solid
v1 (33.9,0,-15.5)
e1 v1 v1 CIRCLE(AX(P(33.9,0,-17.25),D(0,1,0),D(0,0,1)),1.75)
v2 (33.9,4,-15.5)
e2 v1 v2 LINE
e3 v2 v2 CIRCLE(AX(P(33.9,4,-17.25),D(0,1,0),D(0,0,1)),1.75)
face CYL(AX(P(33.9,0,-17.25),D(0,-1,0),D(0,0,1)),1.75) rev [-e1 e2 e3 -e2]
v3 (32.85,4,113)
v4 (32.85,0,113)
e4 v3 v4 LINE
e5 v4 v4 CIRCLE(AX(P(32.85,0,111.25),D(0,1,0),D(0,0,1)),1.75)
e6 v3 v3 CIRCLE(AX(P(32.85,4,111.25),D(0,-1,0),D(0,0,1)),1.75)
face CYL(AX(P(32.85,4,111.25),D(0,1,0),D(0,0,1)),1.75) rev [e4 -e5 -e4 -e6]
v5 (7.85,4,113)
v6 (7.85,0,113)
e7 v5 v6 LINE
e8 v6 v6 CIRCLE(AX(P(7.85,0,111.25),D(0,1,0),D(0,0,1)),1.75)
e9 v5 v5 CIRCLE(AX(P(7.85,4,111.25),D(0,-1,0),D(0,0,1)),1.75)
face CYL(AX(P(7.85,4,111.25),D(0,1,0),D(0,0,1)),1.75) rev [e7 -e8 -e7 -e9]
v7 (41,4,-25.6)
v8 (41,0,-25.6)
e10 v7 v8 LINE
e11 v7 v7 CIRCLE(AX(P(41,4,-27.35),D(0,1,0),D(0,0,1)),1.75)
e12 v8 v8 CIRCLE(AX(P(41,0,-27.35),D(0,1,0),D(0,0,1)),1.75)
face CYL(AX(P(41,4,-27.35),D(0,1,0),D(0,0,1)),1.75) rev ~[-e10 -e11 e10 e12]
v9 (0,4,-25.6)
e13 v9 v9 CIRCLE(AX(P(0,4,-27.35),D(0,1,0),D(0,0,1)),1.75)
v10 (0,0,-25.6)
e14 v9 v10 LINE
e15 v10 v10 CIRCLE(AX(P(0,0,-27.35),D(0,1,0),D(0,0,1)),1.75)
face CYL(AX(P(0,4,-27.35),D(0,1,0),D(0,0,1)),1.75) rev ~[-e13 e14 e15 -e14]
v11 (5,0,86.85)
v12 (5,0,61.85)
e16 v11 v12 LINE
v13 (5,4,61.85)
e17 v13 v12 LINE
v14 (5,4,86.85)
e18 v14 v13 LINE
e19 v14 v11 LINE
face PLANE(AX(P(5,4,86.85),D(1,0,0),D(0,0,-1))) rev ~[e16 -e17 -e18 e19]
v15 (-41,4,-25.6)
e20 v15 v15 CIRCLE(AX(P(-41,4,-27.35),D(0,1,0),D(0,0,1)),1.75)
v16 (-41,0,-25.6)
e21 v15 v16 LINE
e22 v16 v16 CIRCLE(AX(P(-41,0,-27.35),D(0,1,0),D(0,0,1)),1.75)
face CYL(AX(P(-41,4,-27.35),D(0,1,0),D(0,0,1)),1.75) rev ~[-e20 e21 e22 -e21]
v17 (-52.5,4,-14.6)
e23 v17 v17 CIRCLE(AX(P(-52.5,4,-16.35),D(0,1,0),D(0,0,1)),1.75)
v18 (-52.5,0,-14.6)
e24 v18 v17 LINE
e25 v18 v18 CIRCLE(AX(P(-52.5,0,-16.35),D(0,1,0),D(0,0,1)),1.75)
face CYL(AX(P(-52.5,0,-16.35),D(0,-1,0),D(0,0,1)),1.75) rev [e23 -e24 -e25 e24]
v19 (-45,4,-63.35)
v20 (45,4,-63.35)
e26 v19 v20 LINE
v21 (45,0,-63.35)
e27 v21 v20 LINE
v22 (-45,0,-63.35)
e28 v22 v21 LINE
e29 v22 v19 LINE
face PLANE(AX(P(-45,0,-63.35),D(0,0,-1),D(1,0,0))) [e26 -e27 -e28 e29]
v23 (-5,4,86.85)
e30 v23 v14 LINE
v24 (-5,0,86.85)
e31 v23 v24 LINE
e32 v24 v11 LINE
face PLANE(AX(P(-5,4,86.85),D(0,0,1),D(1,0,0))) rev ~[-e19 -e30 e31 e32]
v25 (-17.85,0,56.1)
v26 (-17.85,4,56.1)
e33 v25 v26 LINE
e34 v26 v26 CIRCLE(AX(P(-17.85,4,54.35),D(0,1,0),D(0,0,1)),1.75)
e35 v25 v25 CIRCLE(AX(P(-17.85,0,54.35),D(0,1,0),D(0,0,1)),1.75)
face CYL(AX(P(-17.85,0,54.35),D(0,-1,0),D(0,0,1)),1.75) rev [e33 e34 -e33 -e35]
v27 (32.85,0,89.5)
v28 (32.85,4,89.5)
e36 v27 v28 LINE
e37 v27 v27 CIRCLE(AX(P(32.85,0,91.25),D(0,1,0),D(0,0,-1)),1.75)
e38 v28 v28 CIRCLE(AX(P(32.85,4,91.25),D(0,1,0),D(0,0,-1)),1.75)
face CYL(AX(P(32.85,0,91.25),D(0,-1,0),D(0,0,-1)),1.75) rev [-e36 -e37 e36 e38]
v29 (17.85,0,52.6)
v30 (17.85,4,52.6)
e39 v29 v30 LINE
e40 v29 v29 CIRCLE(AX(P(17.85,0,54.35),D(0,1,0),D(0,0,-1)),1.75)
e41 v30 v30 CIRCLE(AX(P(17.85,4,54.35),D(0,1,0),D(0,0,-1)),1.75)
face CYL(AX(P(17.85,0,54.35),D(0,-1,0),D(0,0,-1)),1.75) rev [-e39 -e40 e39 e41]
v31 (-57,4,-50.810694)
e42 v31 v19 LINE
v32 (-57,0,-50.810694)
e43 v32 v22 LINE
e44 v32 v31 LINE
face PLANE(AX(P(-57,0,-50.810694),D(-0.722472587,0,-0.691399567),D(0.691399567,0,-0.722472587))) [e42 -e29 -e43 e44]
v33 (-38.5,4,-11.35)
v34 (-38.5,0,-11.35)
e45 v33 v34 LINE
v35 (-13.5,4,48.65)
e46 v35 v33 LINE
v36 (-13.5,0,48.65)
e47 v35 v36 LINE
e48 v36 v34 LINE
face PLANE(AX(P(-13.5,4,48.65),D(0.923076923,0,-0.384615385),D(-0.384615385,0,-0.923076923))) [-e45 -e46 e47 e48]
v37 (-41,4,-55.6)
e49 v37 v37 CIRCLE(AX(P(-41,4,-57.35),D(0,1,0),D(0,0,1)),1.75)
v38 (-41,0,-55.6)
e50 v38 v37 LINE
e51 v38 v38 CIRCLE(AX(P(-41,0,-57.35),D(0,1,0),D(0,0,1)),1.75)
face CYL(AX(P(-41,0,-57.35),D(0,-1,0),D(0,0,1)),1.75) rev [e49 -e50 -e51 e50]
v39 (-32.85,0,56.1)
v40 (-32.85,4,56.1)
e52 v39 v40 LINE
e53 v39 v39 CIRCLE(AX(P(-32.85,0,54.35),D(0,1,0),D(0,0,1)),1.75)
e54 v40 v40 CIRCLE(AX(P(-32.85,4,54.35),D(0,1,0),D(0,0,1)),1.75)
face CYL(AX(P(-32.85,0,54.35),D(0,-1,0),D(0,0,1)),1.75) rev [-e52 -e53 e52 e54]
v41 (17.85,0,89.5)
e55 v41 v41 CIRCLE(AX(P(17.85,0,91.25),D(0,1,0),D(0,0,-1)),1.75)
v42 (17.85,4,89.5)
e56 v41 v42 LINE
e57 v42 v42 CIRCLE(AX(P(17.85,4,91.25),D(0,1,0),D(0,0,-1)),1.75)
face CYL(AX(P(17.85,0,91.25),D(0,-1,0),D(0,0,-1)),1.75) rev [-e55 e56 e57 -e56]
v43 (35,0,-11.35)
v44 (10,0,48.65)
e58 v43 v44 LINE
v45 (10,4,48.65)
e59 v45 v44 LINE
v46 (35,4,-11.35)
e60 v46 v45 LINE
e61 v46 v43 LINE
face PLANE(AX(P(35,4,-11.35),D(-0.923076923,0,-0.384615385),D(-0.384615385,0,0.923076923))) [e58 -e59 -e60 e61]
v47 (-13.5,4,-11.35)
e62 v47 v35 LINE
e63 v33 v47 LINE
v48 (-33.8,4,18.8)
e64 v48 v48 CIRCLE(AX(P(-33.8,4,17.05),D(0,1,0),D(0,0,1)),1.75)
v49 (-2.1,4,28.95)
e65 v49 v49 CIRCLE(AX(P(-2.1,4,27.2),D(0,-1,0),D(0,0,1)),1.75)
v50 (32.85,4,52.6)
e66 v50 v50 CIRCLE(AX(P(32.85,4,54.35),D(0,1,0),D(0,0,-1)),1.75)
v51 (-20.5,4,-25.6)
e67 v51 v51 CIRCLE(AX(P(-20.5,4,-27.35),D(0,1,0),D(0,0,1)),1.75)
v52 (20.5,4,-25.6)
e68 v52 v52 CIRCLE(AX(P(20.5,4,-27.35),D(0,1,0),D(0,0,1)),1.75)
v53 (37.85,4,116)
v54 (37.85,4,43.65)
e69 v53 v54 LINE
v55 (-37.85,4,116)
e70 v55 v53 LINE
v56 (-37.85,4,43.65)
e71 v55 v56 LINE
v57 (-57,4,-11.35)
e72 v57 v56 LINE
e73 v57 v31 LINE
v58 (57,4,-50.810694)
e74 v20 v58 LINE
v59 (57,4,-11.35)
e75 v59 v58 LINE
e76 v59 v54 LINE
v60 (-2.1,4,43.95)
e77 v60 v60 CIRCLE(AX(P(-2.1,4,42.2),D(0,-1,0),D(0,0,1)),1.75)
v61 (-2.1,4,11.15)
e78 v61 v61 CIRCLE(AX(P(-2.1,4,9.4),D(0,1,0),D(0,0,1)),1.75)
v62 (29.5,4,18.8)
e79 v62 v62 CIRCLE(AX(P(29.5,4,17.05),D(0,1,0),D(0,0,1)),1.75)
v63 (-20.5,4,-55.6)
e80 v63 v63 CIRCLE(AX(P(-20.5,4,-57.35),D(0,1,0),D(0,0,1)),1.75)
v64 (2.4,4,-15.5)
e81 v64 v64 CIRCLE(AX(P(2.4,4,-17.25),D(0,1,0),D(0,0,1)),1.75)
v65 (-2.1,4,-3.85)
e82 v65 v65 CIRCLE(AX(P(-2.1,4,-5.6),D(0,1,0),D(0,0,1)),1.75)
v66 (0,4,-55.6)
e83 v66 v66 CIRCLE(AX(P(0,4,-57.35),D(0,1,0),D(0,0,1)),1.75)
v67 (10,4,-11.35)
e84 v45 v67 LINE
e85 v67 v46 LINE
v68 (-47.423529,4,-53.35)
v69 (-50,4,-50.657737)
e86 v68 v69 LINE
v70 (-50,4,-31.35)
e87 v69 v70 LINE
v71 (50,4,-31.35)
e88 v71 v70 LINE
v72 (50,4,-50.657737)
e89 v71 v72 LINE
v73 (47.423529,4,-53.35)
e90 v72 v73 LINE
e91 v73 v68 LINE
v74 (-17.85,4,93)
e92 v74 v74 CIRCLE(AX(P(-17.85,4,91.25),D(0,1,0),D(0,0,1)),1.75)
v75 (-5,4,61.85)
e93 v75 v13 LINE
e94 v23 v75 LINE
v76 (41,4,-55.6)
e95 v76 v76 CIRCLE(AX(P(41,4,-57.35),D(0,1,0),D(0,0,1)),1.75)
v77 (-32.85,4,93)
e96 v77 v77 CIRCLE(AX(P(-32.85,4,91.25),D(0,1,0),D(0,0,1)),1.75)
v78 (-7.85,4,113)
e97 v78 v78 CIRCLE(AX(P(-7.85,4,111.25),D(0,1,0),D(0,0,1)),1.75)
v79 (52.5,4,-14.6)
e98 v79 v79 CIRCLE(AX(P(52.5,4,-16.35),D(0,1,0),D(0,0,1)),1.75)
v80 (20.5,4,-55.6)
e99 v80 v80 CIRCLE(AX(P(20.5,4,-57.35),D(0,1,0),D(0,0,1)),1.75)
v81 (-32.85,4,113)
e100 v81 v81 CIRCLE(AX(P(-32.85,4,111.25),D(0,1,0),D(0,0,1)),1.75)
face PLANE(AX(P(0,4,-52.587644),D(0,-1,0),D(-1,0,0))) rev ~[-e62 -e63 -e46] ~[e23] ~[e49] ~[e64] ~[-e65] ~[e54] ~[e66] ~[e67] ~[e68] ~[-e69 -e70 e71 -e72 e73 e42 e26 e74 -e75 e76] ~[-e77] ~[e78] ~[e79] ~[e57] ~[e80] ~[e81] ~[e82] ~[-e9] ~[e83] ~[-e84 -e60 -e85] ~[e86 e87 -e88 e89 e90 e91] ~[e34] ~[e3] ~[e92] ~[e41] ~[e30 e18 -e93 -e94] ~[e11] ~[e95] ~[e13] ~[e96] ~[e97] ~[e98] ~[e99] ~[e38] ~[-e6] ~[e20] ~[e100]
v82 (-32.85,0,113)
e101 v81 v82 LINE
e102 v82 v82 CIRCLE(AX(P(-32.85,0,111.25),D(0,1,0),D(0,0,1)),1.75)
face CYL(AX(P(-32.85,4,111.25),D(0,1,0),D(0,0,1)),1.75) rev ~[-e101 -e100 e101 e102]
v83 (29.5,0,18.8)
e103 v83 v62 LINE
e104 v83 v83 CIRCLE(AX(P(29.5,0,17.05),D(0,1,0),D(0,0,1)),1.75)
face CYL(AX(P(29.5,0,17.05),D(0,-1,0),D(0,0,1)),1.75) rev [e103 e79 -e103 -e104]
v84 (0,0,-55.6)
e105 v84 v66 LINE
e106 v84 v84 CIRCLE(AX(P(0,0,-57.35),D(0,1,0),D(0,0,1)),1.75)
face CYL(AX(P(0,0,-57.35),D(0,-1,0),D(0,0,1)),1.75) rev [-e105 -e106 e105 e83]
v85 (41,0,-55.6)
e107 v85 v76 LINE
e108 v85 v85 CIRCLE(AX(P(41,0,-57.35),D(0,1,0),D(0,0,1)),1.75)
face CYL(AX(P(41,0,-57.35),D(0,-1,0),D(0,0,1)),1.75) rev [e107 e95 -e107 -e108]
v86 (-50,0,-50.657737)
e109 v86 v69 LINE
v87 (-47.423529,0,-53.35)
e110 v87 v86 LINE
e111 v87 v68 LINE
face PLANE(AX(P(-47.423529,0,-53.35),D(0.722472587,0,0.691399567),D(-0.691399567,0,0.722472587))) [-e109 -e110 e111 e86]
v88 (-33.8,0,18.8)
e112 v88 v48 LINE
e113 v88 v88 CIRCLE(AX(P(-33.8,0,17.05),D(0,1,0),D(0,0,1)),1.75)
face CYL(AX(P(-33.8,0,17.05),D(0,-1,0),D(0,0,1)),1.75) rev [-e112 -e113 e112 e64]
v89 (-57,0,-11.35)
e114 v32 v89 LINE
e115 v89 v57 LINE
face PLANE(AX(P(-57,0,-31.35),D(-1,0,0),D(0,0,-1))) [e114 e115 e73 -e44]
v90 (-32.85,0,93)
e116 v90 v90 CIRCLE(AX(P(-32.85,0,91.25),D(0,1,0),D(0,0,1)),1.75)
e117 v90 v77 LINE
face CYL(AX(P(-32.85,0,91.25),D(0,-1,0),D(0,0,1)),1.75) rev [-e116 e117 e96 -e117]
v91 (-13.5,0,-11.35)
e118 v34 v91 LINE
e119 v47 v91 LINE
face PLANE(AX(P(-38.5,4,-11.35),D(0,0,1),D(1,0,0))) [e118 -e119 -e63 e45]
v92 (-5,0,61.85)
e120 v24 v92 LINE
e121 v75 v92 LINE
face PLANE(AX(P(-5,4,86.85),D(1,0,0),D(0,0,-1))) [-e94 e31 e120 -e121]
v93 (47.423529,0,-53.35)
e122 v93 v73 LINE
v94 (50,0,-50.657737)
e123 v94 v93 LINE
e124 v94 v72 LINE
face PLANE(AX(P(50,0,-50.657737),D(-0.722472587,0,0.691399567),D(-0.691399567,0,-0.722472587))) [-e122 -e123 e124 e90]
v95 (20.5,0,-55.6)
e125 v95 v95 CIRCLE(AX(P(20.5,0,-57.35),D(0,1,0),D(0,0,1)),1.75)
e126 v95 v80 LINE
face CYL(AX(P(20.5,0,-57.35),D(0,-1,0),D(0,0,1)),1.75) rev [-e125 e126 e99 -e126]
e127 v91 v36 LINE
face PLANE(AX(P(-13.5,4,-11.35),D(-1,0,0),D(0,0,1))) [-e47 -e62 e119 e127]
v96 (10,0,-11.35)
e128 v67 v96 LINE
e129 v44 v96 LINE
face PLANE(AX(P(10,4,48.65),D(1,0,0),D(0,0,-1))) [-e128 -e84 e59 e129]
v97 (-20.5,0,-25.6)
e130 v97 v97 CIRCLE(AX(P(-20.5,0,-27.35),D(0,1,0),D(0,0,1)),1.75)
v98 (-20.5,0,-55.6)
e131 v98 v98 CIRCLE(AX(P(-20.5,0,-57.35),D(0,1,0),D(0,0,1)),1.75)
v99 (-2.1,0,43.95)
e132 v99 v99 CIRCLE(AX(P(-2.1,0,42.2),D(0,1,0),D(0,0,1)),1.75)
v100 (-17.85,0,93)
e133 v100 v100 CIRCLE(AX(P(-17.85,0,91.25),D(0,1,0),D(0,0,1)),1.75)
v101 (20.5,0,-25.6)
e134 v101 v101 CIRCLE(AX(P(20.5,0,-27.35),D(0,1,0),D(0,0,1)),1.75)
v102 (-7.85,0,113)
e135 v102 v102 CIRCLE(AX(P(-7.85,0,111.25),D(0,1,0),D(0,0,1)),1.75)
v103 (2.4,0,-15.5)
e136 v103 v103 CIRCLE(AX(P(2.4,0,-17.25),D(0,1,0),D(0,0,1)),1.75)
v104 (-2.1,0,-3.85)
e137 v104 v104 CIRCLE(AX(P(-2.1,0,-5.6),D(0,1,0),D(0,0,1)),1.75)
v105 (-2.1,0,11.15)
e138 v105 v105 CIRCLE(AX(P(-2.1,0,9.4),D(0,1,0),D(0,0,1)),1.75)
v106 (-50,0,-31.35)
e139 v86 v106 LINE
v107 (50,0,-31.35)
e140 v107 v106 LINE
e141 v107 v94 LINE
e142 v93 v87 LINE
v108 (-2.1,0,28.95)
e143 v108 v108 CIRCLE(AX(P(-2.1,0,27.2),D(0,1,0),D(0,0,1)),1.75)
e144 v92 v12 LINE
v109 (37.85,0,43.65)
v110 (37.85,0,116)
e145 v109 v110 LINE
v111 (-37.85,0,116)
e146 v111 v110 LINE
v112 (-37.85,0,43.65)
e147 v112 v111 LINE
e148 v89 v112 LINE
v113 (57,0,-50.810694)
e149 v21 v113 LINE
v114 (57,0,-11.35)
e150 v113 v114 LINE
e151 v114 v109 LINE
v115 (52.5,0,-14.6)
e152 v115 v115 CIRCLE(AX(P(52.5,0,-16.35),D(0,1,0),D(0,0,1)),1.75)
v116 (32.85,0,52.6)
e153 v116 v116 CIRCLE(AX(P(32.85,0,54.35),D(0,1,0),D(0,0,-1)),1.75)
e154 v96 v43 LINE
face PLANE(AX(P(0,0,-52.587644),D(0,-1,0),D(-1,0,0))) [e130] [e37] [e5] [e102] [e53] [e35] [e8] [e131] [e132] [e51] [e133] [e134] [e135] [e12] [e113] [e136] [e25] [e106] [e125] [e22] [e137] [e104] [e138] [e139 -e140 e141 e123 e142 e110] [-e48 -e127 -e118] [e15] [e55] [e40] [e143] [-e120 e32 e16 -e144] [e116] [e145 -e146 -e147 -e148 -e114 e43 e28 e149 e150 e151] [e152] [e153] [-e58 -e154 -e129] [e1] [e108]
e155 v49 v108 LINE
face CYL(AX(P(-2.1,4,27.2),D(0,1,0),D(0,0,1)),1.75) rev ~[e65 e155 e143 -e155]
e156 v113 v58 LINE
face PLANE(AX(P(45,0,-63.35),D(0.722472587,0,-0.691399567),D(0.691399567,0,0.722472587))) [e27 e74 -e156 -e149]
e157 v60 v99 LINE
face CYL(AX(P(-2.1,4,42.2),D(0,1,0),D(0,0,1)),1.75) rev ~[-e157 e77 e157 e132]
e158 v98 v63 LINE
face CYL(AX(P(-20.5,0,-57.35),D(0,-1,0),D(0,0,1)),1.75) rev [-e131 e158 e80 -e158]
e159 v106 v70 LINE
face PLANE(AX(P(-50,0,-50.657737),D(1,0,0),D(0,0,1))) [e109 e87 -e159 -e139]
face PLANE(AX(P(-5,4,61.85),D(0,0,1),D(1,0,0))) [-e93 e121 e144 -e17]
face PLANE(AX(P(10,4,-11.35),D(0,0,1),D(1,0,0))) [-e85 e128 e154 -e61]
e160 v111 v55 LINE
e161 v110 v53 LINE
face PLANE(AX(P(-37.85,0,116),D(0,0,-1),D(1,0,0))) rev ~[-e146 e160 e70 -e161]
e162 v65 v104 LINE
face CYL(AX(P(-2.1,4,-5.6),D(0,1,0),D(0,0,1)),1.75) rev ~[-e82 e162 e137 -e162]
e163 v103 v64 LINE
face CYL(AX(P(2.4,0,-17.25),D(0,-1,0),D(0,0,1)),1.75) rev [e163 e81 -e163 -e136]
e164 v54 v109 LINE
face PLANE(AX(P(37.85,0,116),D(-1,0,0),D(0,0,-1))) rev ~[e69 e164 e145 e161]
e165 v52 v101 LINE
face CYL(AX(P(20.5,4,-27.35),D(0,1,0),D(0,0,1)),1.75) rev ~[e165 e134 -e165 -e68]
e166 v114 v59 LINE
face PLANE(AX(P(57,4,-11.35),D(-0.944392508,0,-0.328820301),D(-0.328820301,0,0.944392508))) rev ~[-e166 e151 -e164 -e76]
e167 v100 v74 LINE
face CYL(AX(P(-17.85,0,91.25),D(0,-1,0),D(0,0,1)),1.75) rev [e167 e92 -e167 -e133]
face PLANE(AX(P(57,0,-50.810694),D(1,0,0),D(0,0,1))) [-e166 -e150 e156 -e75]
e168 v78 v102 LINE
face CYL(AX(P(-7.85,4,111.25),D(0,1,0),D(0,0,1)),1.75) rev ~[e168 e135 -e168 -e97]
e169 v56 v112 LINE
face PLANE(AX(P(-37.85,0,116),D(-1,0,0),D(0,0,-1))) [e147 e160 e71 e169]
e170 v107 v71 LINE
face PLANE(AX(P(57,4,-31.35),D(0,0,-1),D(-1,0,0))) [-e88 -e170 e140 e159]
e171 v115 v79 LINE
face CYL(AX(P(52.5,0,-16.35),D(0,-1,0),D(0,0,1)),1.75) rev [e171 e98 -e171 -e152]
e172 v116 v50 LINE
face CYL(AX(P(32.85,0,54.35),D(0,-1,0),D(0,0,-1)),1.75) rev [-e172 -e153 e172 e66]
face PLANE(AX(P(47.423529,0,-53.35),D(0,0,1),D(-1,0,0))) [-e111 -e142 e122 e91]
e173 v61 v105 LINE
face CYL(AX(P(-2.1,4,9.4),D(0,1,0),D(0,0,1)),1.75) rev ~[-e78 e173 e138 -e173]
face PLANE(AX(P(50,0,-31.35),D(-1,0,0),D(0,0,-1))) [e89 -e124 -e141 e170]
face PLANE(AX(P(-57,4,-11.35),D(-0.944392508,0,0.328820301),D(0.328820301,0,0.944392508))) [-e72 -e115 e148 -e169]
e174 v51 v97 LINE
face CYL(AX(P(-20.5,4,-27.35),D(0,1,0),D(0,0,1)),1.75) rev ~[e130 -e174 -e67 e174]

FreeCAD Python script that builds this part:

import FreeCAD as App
import Part
import Sketcher
Q = App.Units.Quantity


def add_polygon(sketch, points):
    """Adds a closed chain of lines whose ends are joined by coincident constraints."""
    first, n = sketch.GeometryCount, len(points)
    for a, b in zip(points, points[1:] + points[:1]):
        sketch.addGeometry(Part.LineSegment(App.Vector(*a, 0), App.Vector(*b, 0)), False)
    for i in range(n):
        sketch.addConstraint(Sketcher.Constraint("Coincident", first + i, 2, first + (i + 1) % n, 1))

doc = App.newDocument("Part")
body = doc.addObject("PartDesign::Body", "Body")

# Sketch on XZ plane
sketch1 = body.newObject("Sketcher::SketchObject", "Sketch")
sketch1.AttachmentSupport = (doc.getObject("XZ_Plane"), [""])
sketch1.MapMode = "FlatFace"
add_polygon(sketch1, [(-37.85, -21.35), (-37.85, 21.35), (37.85, 21.35), (37.85, -21.35)])  # lines 0-3
sketch1.addGeometry(Part.Circle(App.Vector(-33.8, 17.05, 0), App.Vector(0, 0, 1), 1.75), False)  # 4
sketch1.addGeometry(Part.Circle(App.Vector(29.5, 17.05, 0), App.Vector(0, 0, 1), 1.75), False)  # 5
sketch1.addGeometry(Part.Circle(App.Vector(2.4, -17.25, 0), App.Vector(0, 0, 1), 1.75), False)  # 6
sketch1.addGeometry(Part.Circle(App.Vector(33.9, -17.25, 0), App.Vector(0, 0, 1), 1.75), False)  # 7
sketch1.addConstraint(Sketcher.Constraint("Vertical", 0))
sketch1.addConstraint(Sketcher.Constraint("Horizontal", 1))
sketch1.addConstraint(Sketcher.Constraint("Vertical", 2))
sketch1.addConstraint(Sketcher.Constraint("Horizontal", 3))
sketch1.addConstraint(Sketcher.Constraint("Equal", 4, 5))
sketch1.addConstraint(Sketcher.Constraint("Equal", 5, 6))
sketch1.addConstraint(Sketcher.Constraint("Equal", 6, 7))
sketch1.addConstraint(Sketcher.Constraint("Symmetric", 0, 2, 2, 2, -1, 1))
sketch1.addConstraint(Sketcher.Constraint("Horizontal", 4, 3, 5, 3))
sketch1.addConstraint(Sketcher.Constraint("Horizontal", 6, 3, 7, 3))
sketch1.addConstraint(Sketcher.Constraint("Diameter", 4, Q("3.5 mm")))
sketch1.addConstraint(Sketcher.Constraint("DistanceX", 1, 1, 1, 2, Q("75.7 mm")))
sketch1.addConstraint(Sketcher.Constraint("DistanceY", 0, 1, 0, 2, Q("42.7 mm")))
sketch1.addConstraint(Sketcher.Constraint("DistanceX", 4, 3, -1, 1, Q("33.8 mm")))
sketch1.addConstraint(Sketcher.Constraint("DistanceX", -1, 1, 5, 3, Q("29.5 mm")))
sketch1.addConstraint(Sketcher.Constraint("DistanceX", -1, 1, 6, 3, Q("2.4 mm")))
sketch1.addConstraint(Sketcher.Constraint("DistanceX", -1, 1, 7, 3, Q("33.9 mm")))
sketch1.addConstraint(Sketcher.Constraint("DistanceY", 6, 3, 5, 3, Q("34.3 mm")))
sketch1.addConstraint(Sketcher.Constraint("DistanceY", 4, 3, 0, 2, Q("4.3 mm")))
pad1 = body.newObject("PartDesign::Pad", "Pad")
pad1.Profile = sketch1
pad1.Length = 4
pad1.Reversed = True

# Sketch on XZ plane
sketch2 = body.newObject("Sketcher::SketchObject", "Sketch001")
sketch2.AttachmentSupport = (doc.getObject("XZ_Plane"), [""])
sketch2.MapMode = "FlatFace"
sketch2.AttachmentOffset = App.Placement(App.Vector(0, 0, -4), App.Rotation())
add_polygon(sketch2, [(-37.85, 21.35), (-37.85, 51.1), (37.85, 51.1), (37.85, 21.35)])  # lines 0-3
sketch2.addGeometry(Part.Circle(App.Vector(-2.1, 27.2, 0), App.Vector(0, 0, 1), 1.75), False)  # 4
sketch2.addGeometry(Part.Circle(App.Vector(-2.1, 42.2, 0), App.Vector(0, 0, 1), 1.75), False)  # 5
sketch2.addConstraint(Sketcher.Constraint("Vertical", 0))
sketch2.addConstraint(Sketcher.Constraint("Horizontal", 1))
sketch2.addConstraint(Sketcher.Constraint("Vertical", 2))
sketch2.addConstraint(Sketcher.Constraint("Horizontal", 3))
sketch2.addConstraint(Sketcher.Constraint("Equal", 4, 5))
sketch2.addConstraint(Sketcher.Constraint("Vertical", 4, 3, 5, 3))
sketch2.addConstraint(Sketcher.Constraint("Diameter", 4, Q("3.5 mm")))
sketch2.addConstraint(Sketcher.Constraint("DistanceX", 1, 1, 1, 2, Q("75.7 mm")))
sketch2.addConstraint(Sketcher.Constraint("DistanceY", 4, 3, 5, 3, Q("15 mm")))
sketch2.addConstraint(Sketcher.Constraint("DistanceY", 0, 1, 0, 2, Q("29.75 mm")))
sketch2.addConstraint(Sketcher.Constraint("DistanceX", 4, 3, -1, 1, Q("2.1 mm")))
sketch2.addConstraint(Sketcher.Constraint("DistanceY", -1, 1, 4, 3, Q("27.2 mm")))
sketch2.addConstraint(Sketcher.Constraint("DistanceY", -1, 1, 0, 2, Q("51.1 mm")))
sketch2.addConstraint(Sketcher.Constraint("DistanceX", 0, 2, -1, 1, Q("37.85 mm")))
pad2 = body.newObject("PartDesign::Pad", "Pad001")
pad2.Profile = sketch2
pad2.Length = 4

# Sketch on XZ plane
sketch3 = body.newObject("Sketcher::SketchObject", "Sketch002")
sketch3.AttachmentSupport = (doc.getObject("XZ_Plane"), [""])
sketch3.MapMode = "FlatFace"
sketch3.AttachmentOffset = App.Placement(App.Vector(0, 0, -4), App.Rotation())
sketch3.addGeometry(Part.Circle(App.Vector(-2.1, -5.6, 0), App.Vector(0, 0, 1), 1.75), False)
sketch3.addGeometry(Part.Circle(App.Vector(-2.1, 9.4, 0), App.Vector(0, 0, 1), 1.75), False)
sketch3.addConstraint(Sketcher.Constraint("Equal", 0, 1))
sketch3.addConstraint(Sketcher.Constraint("Vertical", 0, 3, 1, 3))
sketch3.addConstraint(Sketcher.Constraint("Diameter", 0, Q("3.5 mm")))
sketch3.addConstraint(Sketcher.Constraint("DistanceY", 0, 3, 1, 3, Q("15 mm")))
sketch3.addConstraint(Sketcher.Constraint("DistanceX", 0, 3, -1, 1, Q("2.1 mm")))
sketch3.addConstraint(Sketcher.Constraint("DistanceY", 0, 3, -1, 1, Q("5.6 mm")))
pocket1 = body.newObject("PartDesign::Pocket", "Pocket")
pocket1.Profile = sketch3
pocket1.Length = 4
pocket1.Reversed = True

# Sketch on XZ plane
sketch4 = body.newObject("Sketcher::SketchObject", "Sketch003")
sketch4.AttachmentSupport = (doc.getObject("XZ_Plane"), [""])
sketch4.MapMode = "FlatFace"
add_polygon(sketch4, [(-37.85, 51.1), (-37.85, 94.5), (37.85, 94.5), (37.85, 51.1)])  # lines 0-3
sketch4.addGeometry(Part.Circle(App.Vector(-32.85, 91.25, 0), App.Vector(0, 0, 1), 1.75), False)  # 4
sketch4.addGeometry(Part.Circle(App.Vector(-17.85, 91.25, 0), App.Vector(0, 0, 1), 1.75), False)  # 5
sketch4.addGeometry(Part.Circle(App.Vector(17.85, 91.25, 0), App.Vector(0, 0, 1), 1.75), False)  # 6
sketch4.addGeometry(Part.Circle(App.Vector(32.85, 91.25, 0), App.Vector(0, 0, 1), 1.75), False)  # 7
sketch4.addGeometry(Part.Circle(App.Vector(-32.85, 54.35, 0), App.Vector(0, 0, 1), 1.75), False)  # 8
sketch4.addGeometry(Part.Circle(App.Vector(-17.85, 54.35, 0), App.Vector(0, 0, 1), 1.75), False)  # 9
sketch4.addGeometry(Part.Circle(App.Vector(17.85, 54.35, 0), App.Vector(0, 0, 1), 1.75), False)  # 10
sketch4.addGeometry(Part.Circle(App.Vector(32.85, 54.35, 0), App.Vector(0, 0, 1), 1.75), False)  # 11
add_polygon(sketch4, [(-44, -21.35), (44, -21.35), (44, -29.35), (-44, -29.35)])  # lines 12-15
sketch4.addConstraint(Sketcher.Constraint("Vertical", 0))
sketch4.addConstraint(Sketcher.Constraint("Horizontal", 1))
sketch4.addConstraint(Sketcher.Constraint("Vertical", 2))
sketch4.addConstraint(Sketcher.Constraint("Horizontal", 3))
sketch4.addConstraint(Sketcher.Constraint("Horizontal", 12))
sketch4.addConstraint(Sketcher.Constraint("Vertical", 13))
sketch4.addConstraint(Sketcher.Constraint("Horizontal", 14))
sketch4.addConstraint(Sketcher.Constraint("Vertical", 15))
sketch4.addConstraint(Sketcher.Constraint("Equal", 4, 5))
sketch4.addConstraint(Sketcher.Constraint("Equal", 5, 6))
sketch4.addConstraint(Sketcher.Constraint("Equal", 6, 7))
sketch4.addConstraint(Sketcher.Constraint("Equal", 7, 8))
sketch4.addConstraint(Sketcher.Constraint("Equal", 8, 9))
sketch4.addConstraint(Sketcher.Constraint("Equal", 9, 10))
sketch4.addConstraint(Sketcher.Constraint("Equal", 10, 11))
sketch4.addConstraint(Sketcher.Constraint("Symmetric", 5, 3, 6, 3, -2))
sketch4.addConstraint(Sketcher.Constraint("Symmetric", 4, 3, 7, 3, -2))
sketch4.addConstraint(Sketcher.Constraint("Symmetric", 9, 3, 10, 3, -2))
sketch4.addConstraint(Sketcher.Constraint("Symmetric", 8, 3, 11, 3, -2))
sketch4.addConstraint(Sketcher.Constraint("Horizontal", 4, 3, 5, 3))
sketch4.addConstraint(Sketcher.Constraint("Horizontal", 8, 3, 9, 3))
sketch4.addConstraint(Sketcher.Constraint("Vertical", 4, 3, 8, 3))
sketch4.addConstraint(Sketcher.Constraint("Vertical", 5, 3, 9, 3))
sketch4.addConstraint(Sketcher.Constraint("Diameter", 4, Q("3.5 mm")))
sketch4.addConstraint(Sketcher.Constraint("DistanceX", 12, 1, 12, 2, Q("88 mm")))
sketch4.addConstraint(Sketcher.Constraint("DistanceY", 13, 2, 13, 1, Q("8 mm")))
sketch4.addConstraint(Sketcher.Constraint("DistanceX", 1, 1, 1, 2, Q("75.7 mm")))
sketch4.addConstraint(Sketcher.Constraint("DistanceY", 0, 1, 0, 2, Q("43.4 mm")))
sketch4.addConstraint(Sketcher.Constraint("DistanceX", -1, 1, 12, 2, Q("44 mm")))
sketch4.addConstraint(Sketcher.Constraint("DistanceX", 4, 3, 5, 3, Q("15 mm")))
sketch4.addConstraint(Sketcher.Constraint("DistanceX", 0, 2, 4, 3, Q("5 mm")))
sketch4.addConstraint(Sketcher.Constraint("DistanceX", 7, 3, 1, 2, Q("5 mm")))
sketch4.addConstraint(Sketcher.Constraint("DistanceY", -1, 1, 0, 2, Q("94.5 mm")))
sketch4.addConstraint(Sketcher.Constraint("DistanceY", 8, 3, 4, 3, Q("36.9 mm")))
sketch4.addConstraint(Sketcher.Constraint("DistanceY", 12, 2, 11, 3, Q("75.7 mm")))
sketch4.addConstraint(Sketcher.Constraint("DistanceY", -1, 1, 4, 3, Q("91.25 mm")))
pad3 = body.newObject("PartDesign::Pad", "Pad002")
pad3.Profile = sketch4
pad3.Length = 4
pad3.Reversed = True

# Sketch on XZ plane
sketch5 = body.newObject("Sketcher::SketchObject", "Sketch004")
sketch5.AttachmentSupport = (doc.getObject("XZ_Plane"), [""])
sketch5.MapMode = "FlatFace"
sketch5.AttachmentOffset = App.Placement(App.Vector(0, 0, -4), App.Rotation())
add_polygon(sketch5, [(-57, -31.35), (-57, -21.35), (-44, -21.35), (-44, -29.35), (44, -29.35), (44, -21.35), (57, -21.35), (57, -31.35)])  # lines 0-7
sketch5.addConstraint(Sketcher.Constraint("Vertical", 0))
sketch5.addConstraint(Sketcher.Constraint("Horizontal", 1))
sketch5.addConstraint(Sketcher.Constraint("Vertical", 2))
sketch5.addConstraint(Sketcher.Constraint("Horizontal", 3))
sketch5.addConstraint(Sketcher.Constraint("Vertical", 4))
sketch5.addConstraint(Sketcher.Constraint("Horizontal", 5))
sketch5.addConstraint(Sketcher.Constraint("Vertical", 6))
sketch5.addConstraint(Sketcher.Constraint("Horizontal", 7))
sketch5.addConstraint(Sketcher.Constraint("Symmetric", 1, 2, 4, 2, -2))
sketch5.addConstraint(Sketcher.Constraint("Equal", 1, 5))
sketch5.addConstraint(Sketcher.Constraint("DistanceX", 1, 1, 1, 2, Q("13 mm")))
sketch5.addConstraint(Sketcher.Constraint("DistanceX", 3, 1, 3, 2, Q("88 mm")))
sketch5.addConstraint(Sketcher.Constraint("DistanceY", 0, 1, 0, 2, Q("10 mm")))
sketch5.addConstraint(Sketcher.Constraint("DistanceY", 2, 2, 2, 1, Q("8 mm")))
sketch5.addConstraint(Sketcher.Constraint("DistanceY", 0, 2, -1, 1, Q("21.35 mm")))
pad4 = body.newObject("PartDesign::Pad", "Pad003")
pad4.Profile = sketch5
pad4.Length = 4

# Sketch on XZ plane
sketch6 = body.newObject("Sketcher::SketchObject", "Sketch005")
sketch6.AttachmentSupport = (doc.getObject("XZ_Plane"), [""])
sketch6.MapMode = "FlatFace"
sketch6.AttachmentOffset = App.Placement(App.Vector(0, 0, -4), App.Rotation())
sketch6.addGeometry(Part.Circle(App.Vector(0, -27.35, 0), App.Vector(0, 0, 1), 1.75), False)
sketch6.addGeometry(Part.Circle(App.Vector(20.5, -27.35, 0), App.Vector(0, 0, 1), 1.75), False)
sketch6.addGeometry(Part.Circle(App.Vector(41, -27.35, 0), App.Vector(0, 0, 1), 1.75), False)
sketch6.addGeometry(Part.Circle(App.Vector(-20.5, -27.35, 0), App.Vector(0, 0, 1), 1.75), False)
sketch6.addGeometry(Part.Circle(App.Vector(-41, -27.35, 0), App.Vector(0, 0, 1), 1.75), False)
sketch6.addConstraint(Sketcher.Constraint("Equal", 0, 1))
sketch6.addConstraint(Sketcher.Constraint("Equal", 1, 2))
sketch6.addConstraint(Sketcher.Constraint("Equal", 2, 3))
sketch6.addConstraint(Sketcher.Constraint("Equal", 3, 4))
sketch6.addConstraint(Sketcher.Constraint("Symmetric", 1, 3, 3, 3, -2))
sketch6.addConstraint(Sketcher.Constraint("Symmetric", 2, 3, 4, 3, -2))
sketch6.addConstraint(Sketcher.Constraint("PointOnObject", 0, 3, -2))
sketch6.addConstraint(Sketcher.Constraint("Horizontal", 0, 3, 1, 3))
sketch6.addConstraint(Sketcher.Constraint("Horizontal", 1, 3, 2, 3))
sketch6.addConstraint(Sketcher.Constraint("Diameter", 0, Q("3.5 mm")))
sketch6.addConstraint(Sketcher.Constraint("DistanceX", -1, 1, 2, 3, Q("41 mm")))
sketch6.addConstraint(Sketcher.Constraint("DistanceX", 3, 3, 1, 3, Q("41 mm")))
sketch6.addConstraint(Sketcher.Constraint("DistanceY", 0, 3, -1, 1, Q("27.35 mm")))
pocket2 = body.newObject("PartDesign::Pocket", "Pocket001")
pocket2.Profile = sketch6
pocket2.Type = "ThroughAll"
pocket2.Reversed = True

# Sketch on XZ plane
sketch7 = body.newObject("Sketcher::SketchObject", "Sketch006")
sketch7.AttachmentSupport = (doc.getObject("XZ_Plane"), [""])
sketch7.MapMode = "FlatFace"
add_polygon(sketch7, [(-57, -21.35), (-57, -11.35), (-37.85, -11.35), (-37.85, -21.35)])  # lines 0-3
sketch7.addGeometry(Part.Circle(App.Vector(-52.5, -16.35, 0), App.Vector(0, 0, 1), 1.75), False)  # 4
add_polygon(sketch7, [(37.85, -21.35), (37.85, -11.35), (57, -11.35), (57, -21.35)])  # lines 5-8
sketch7.addGeometry(Part.Circle(App.Vector(52.5, -16.35, 0), App.Vector(0, 0, 1), 1.75), False)  # 9
sketch7.addConstraint(Sketcher.Constraint("Vertical", 0))
sketch7.addConstraint(Sketcher.Constraint("Horizontal", 1))
sketch7.addConstraint(Sketcher.Constraint("Vertical", 2))
sketch7.addConstraint(Sketcher.Constraint("Horizontal", 3))
sketch7.addConstraint(Sketcher.Constraint("Vertical", 5))
sketch7.addConstraint(Sketcher.Constraint("Horizontal", 6))
sketch7.addConstraint(Sketcher.Constraint("Vertical", 7))
sketch7.addConstraint(Sketcher.Constraint("Horizontal", 8))
sketch7.addConstraint(Sketcher.Constraint("Equal", 4, 9))
sketch7.addConstraint(Sketcher.Constraint("Symmetric", 4, 3, 9, 3, -2))
sketch7.addConstraint(Sketcher.Constraint("Symmetric", 1, 2, 5, 2, -2))
sketch7.addConstraint(Sketcher.Constraint("Symmetric", 3, 2, 7, 2, -2))
sketch7.addConstraint(Sketcher.Constraint("Diameter", 4, Q("3.5 mm")))
sketch7.addConstraint(Sketcher.Constraint("DistanceY", 0, 1, 0, 2, Q("10 mm")))
sketch7.addConstraint(Sketcher.Constraint("DistanceX", 0, 2, -1, 1, Q("57 mm")))
sketch7.addConstraint(Sketcher.Constraint("DistanceX", 4, 3, 9, 3, Q("105 mm")))
sketch7.addConstraint(Sketcher.Constraint("DistanceY", 4, 3, 0, 2, Q("5 mm")))
sketch7.addConstraint(Sketcher.Constraint("DistanceX", 1, 1, 1, 2, Q("19.15 mm")))
sketch7.addConstraint(Sketcher.Constraint("DistanceY", 4, 3, -1, 1, Q("16.35 mm")))
pad5 = body.newObject("PartDesign::Pad", "Pad004")
pad5.Profile = sketch7
pad5.Length = 4
pad5.Reversed = True

# Sketch on XZ plane
sketch8 = body.newObject("Sketcher::SketchObject", "Sketch007")
sketch8.AttachmentSupport = (doc.getObject("XZ_Plane"), [""])
sketch8.MapMode = "FlatFace"
add_polygon(sketch8, [(-37.85, 94.5), (-37.85, 116), (37.85, 116), (37.85, 94.5)])  # lines 0-3
sketch8.addConstraint(Sketcher.Constraint("Vertical", 0))
sketch8.addConstraint(Sketcher.Constraint("Horizontal", 1))
sketch8.addConstraint(Sketcher.Constraint("Vertical", 2))
sketch8.addConstraint(Sketcher.Constraint("Horizontal", 3))
sketch8.addConstraint(Sketcher.Constraint("DistanceX", 1, 1, 1, 2, Q("75.7 mm")))
sketch8.addConstraint(Sketcher.Constraint("DistanceY", 0, 1, 0, 2, Q("21.5 mm")))
sketch8.addConstraint(Sketcher.Constraint("DistanceY", -1, 1, 0, 2, Q("116 mm")))
sketch8.addConstraint(Sketcher.Constraint("DistanceX", 0, 2, -1, 1, Q("37.85 mm")))
pad6 = body.newObject("PartDesign::Pad", "Pad005")
pad6.Profile = sketch8
pad6.Length = 4
pad6.Reversed = True

# Sketch on XZ plane
sketch9 = body.newObject("Sketcher::SketchObject", "Sketch008")
sketch9.AttachmentSupport = (doc.getObject("XZ_Plane"), [""])
sketch9.MapMode = "FlatFace"
sketch9.AttachmentOffset = App.Placement(App.Vector(0, 0, -4), App.Rotation())
sketch9.addGeometry(Part.Circle(App.Vector(-7.85, 111.25, 0), App.Vector(0, 0, 1), 1.75), False)
sketch9.addGeometry(Part.Circle(App.Vector(-32.85, 111.25, 0), App.Vector(0, 0, 1), 1.75), False)
sketch9.addConstraint(Sketcher.Constraint("Equal", 0, 1))
sketch9.addConstraint(Sketcher.Constraint("Horizontal", 0, 3, 1, 3))
sketch9.addConstraint(Sketcher.Constraint("Diameter", 0, Q("3.5 mm")))
sketch9.addConstraint(Sketcher.Constraint("DistanceX", 1, 3, 0, 3, Q("25 mm")))
sketch9.addConstraint(Sketcher.Constraint("DistanceX", 0, 3, -1, 1, Q("7.85 mm")))
sketch9.addConstraint(Sketcher.Constraint("DistanceY", -1, 1, 0, 3, Q("111.25 mm")))
pocket3 = body.newObject("PartDesign::Pocket", "Pocket002")
pocket3.Profile = sketch9
pocket3.Type = "ThroughAll"
pocket3.Reversed = True
doc.recompute()

mirrored = body.newObject("PartDesign::Mirrored", "Mirrored")
mirrored.Originals = [pocket3]
mirrored.MirrorPlane = (doc.getObject("YZ_Plane"), [""])
body.Tip = mirrored

# Sketch on XZ plane
sketch10 = body.newObject("Sketcher::SketchObject", "Sketch009")
sketch10.AttachmentSupport = (doc.getObject("XZ_Plane"), [""])
sketch10.MapMode = "FlatFace"
sketch10.AttachmentOffset = App.Placement(App.Vector(0, 0, -4), App.Rotation())
add_polygon(sketch10, [(-57, -11.35), (-37.85, 43.65), (-37.85, -11.35)])  # lines 0-2
add_polygon(sketch10, [(37.85, 43.65), (57, -11.35), (37.85, -11.35)])  # lines 3-5
sketch10.addConstraint(Sketcher.Constraint("Vertical", 1))
sketch10.addConstraint(Sketcher.Constraint("Horizontal", 2))
sketch10.addConstraint(Sketcher.Constraint("Horizontal", 4))
sketch10.addConstraint(Sketcher.Constraint("Vertical", 5))
sketch10.addConstraint(Sketcher.Constraint("Symmetric", 2, 2, 3, 2, -2))
sketch10.addConstraint(Sketcher.Constraint("Symmetric", 0, 2, 5, 2, -2))
sketch10.addConstraint(Sketcher.Constraint("DistanceY", 1, 2, 1, 1, Q("55 mm")))
sketch10.addConstraint(Sketcher.Constraint("DistanceX", 2, 2, -1, 1, Q("57 mm")))
sketch10.addConstraint(Sketcher.Constraint("DistanceX", 2, 2, 2, 1, Q("19.15 mm")))
sketch10.addConstraint(Sketcher.Constraint("DistanceY", -1, 1, 0, 2, Q("43.65 mm")))
pad7 = body.newObject("PartDesign::Pad", "Pad006")
pad7.Profile = sketch10
pad7.Length = 4

# Sketch on XZ plane
sketch11 = body.newObject("Sketcher::SketchObject", "Sketch010")
sketch11.AttachmentSupport = (doc.getObject("XZ_Plane"), [""])
sketch11.MapMode = "FlatFace"
sketch11.AttachmentOffset = App.Placement(App.Vector(0, 0, -4), App.Rotation())
add_polygon(sketch11, [(-13.5, -11.35), (-38.5, -11.35), (-13.5, 48.65)])  # lines 0-2
add_polygon(sketch11, [(35, -11.35), (10, -11.35), (10, 48.65)])  # lines 3-5
sketch11.addConstraint(Sketcher.Constraint("Horizontal", 0))
sketch11.addConstraint(Sketcher.Constraint("Vertical", 2))
sketch11.addConstraint(Sketcher.Constraint("Horizontal", 3))
sketch11.addConstraint(Sketcher.Constraint("Vertical", 4))
sketch11.addConstraint(Sketcher.Constraint("Horizontal", 2, 2, 3, 2))
sketch11.addConstraint(Sketcher.Constraint("Horizontal", 1, 2, 4, 2))
sketch11.addConstraint(Sketcher.Constraint("Equal", 0, 3))
sketch11.addConstraint(Sketcher.Constraint("DistanceX", 0, 2, 0, 1, Q("25 mm")))
sketch11.addConstraint(Sketcher.Constraint("DistanceY", 2, 2, 2, 1, Q("60 mm")))
sketch11.addConstraint(Sketcher.Constraint("DistanceX", -1, 1, 3, 2, Q("10 mm")))
sketch11.addConstraint(Sketcher.Constraint("DistanceX", 0, 2, -1, 1, Q("38.5 mm")))
sketch11.addConstraint(Sketcher.Constraint("DistanceY", 0, 2, -1, 1, Q("11.35 mm")))
pocket4 = body.newObject("PartDesign::Pocket", "Pocket003")
pocket4.Profile = sketch11
pocket4.Length = 4
pocket4.Reversed = True

# Sketch on XZ plane
sketch12 = body.newObject("Sketcher::SketchObject", "Sketch011")
sketch12.AttachmentSupport = (doc.getObject("XZ_Plane"), [""])
sketch12.MapMode = "FlatFace"
sketch12.AttachmentOffset = App.Placement(App.Vector(0, 0, -4), App.Rotation())
add_polygon(sketch12, [(-5, 61.85), (-5, 86.85), (5, 86.85), (5, 61.85)])  # lines 0-3
sketch12.addConstraint(Sketcher.Constraint("Vertical", 0))
sketch12.addConstraint(Sketcher.Constraint("Horizontal", 1))
sketch12.addConstraint(Sketcher.Constraint("Vertical", 2))
sketch12.addConstraint(Sketcher.Constraint("Horizontal", 3))
sketch12.addConstraint(Sketcher.Constraint("DistanceX", 1, 1, 1, 2, Q("10 mm")))
sketch12.addConstraint(Sketcher.Constraint("DistanceY", 0, 1, 0, 2, Q("25 mm")))
sketch12.addConstraint(Sketcher.Constraint("DistanceX", 0, 2, -1, 1, Q("5 mm")))
sketch12.addConstraint(Sketcher.Constraint("DistanceY", -1, 1, 0, 2, Q("86.85 mm")))
pocket5 = body.newObject("PartDesign::Pocket", "Pocket004")
pocket5.Profile = sketch12
pocket5.Length = 10
pocket5.Reversed = True

# Sketch on XZ plane
sketch13 = body.newObject("Sketcher::SketchObject", "Sketch012")
sketch13.AttachmentSupport = (doc.getObject("XZ_Plane"), [""])
sketch13.MapMode = "FlatFace"
add_polygon(sketch13, [(-57, -50.810694), (-57, -31.35), (-50, -31.35), (-50, -50.657737), (-47.423529, -53.35), (47.423529, -53.35), (50, -50.657737), (50, -31.35), (57, -31.35), (57, -50.810694), (45, -63.35), (-45, -63.35)])  # lines 0-11
sketch13.addGeometry(Part.Circle(App.Vector(41, -57.35, 0), App.Vector(0, 0, 1), 1.75), False)  # 12
sketch13.addGeometry(Part.Circle(App.Vector(20.5, -57.35, 0), App.Vector(0, 0, 1), 1.75), False)  # 13
sketch13.addGeometry(Part.Circle(App.Vector(0, -57.35, 0), App.Vector(0, 0, 1), 1.75), False)  # 14
sketch13.addGeometry(Part.Circle(App.Vector(-20.5, -57.35, 0), App.Vector(0, 0, 1), 1.75), False)  # 15
sketch13.addGeometry(Part.Circle(App.Vector(-41, -57.35, 0), App.Vector(0, 0, 1), 1.75), False)  # 16
sketch13.addConstraint(Sketcher.Constraint("Vertical", 0))
sketch13.addConstraint(Sketcher.Constraint("Horizontal", 1))
sketch13.addConstraint(Sketcher.Constraint("Vertical", 2))
sketch13.addConstraint(Sketcher.Constraint("Horizontal", 4))
sketch13.addConstraint(Sketcher.Constraint("Vertical", 6))
sketch13.addConstraint(Sketcher.Constraint("Horizontal", 7))
sketch13.addConstraint(Sketcher.Constraint("Vertical", 8))
sketch13.addConstraint(Sketcher.Constraint("Horizontal", 10))
sketch13.addConstraint(Sketcher.Constraint("Equal", 12, 13))
sketch13.addConstraint(Sketcher.Constraint("Equal", 13, 14))
sketch13.addConstraint(Sketcher.Constraint("Equal", 14, 15))
sketch13.addConstraint(Sketcher.Constraint("Equal", 15, 16))
sketch13.addConstraint(Sketcher.Constraint("Symmetric", 13, 3, 15, 3, -2))
sketch13.addConstraint(Sketcher.Constraint("Symmetric", 12, 3, 16, 3, -2))
sketch13.addConstraint(Sketcher.Constraint("Symmetric", 2, 2, 5, 2, -2))
sketch13.addConstraint(Sketcher.Constraint("Symmetric", 0, 2, 7, 2, -2))
sketch13.addConstraint(Sketcher.Constraint("PointOnObject", 14, 3, -2))
sketch13.addConstraint(Sketcher.Constraint("Parallel", 5, 9))
sketch13.addConstraint(Sketcher.Constraint("Parallel", 3, 11))
sketch13.addConstraint(Sketcher.Constraint("Horizontal", 12, 3, 13, 3))
sketch13.addConstraint(Sketcher.Constraint("Horizontal", 13, 3, 14, 3))
sketch13.addConstraint(Sketcher.Constraint("Horizontal", 8, 2, 11, 2))
sketch13.addConstraint(Sketcher.Constraint("Equal", 3, 5))
sketch13.addConstraint(Sketcher.Constraint("Diameter", 12, Q("3.5 mm")))
sketch13.addConstraint(Sketcher.Constraint("DistanceX", 1, 1, 1, 2, Q("7 mm")))
sketch13.addConstraint(Sketcher.Constraint("DistanceX", 10, 2, 10, 1, Q("90 mm")))
sketch13.addConstraint(Sketcher.Constraint("DistanceX", -1, 1, 12, 3, Q("41 mm")))
sketch13.addConstraint(Sketcher.Constraint("DistanceX", 0, 2, -1, 1, Q("57 mm")))
sketch13.addConstraint(Sketcher.Constraint("DistanceX", 15, 3, 13, 3, Q("41 mm")))
sketch13.addConstraint(Sketcher.Constraint("DistanceY", 16, 3, 0, 2, Q("26 mm")))
sketch13.addConstraint(Sketcher.Constraint("DistanceY", 16, 3, 3, 2, Q("4 mm")))
sketch13.addConstraint(Sketcher.Constraint("DistanceY", 9, 2, 12, 3, Q("6 mm")))
sketch13.addConstraint(Sketcher.Constraint("DistanceY", 12, 3, -1, 1, Q("57.35 mm")))
sketch13.addConstraint(Sketcher.Constraint("Distance", 9, Q("17.3561 mm")))
sketch13.addConstraint(Sketcher.Constraint("DistanceX", 4, 1, 4, 2, Q("94.847059 mm")))
pad8 = body.newObject("PartDesign::Pad", "Pad007")
pad8.Profile = sketch13
pad8.Length = 4
pad8.Reversed = True

doc.recompute()
